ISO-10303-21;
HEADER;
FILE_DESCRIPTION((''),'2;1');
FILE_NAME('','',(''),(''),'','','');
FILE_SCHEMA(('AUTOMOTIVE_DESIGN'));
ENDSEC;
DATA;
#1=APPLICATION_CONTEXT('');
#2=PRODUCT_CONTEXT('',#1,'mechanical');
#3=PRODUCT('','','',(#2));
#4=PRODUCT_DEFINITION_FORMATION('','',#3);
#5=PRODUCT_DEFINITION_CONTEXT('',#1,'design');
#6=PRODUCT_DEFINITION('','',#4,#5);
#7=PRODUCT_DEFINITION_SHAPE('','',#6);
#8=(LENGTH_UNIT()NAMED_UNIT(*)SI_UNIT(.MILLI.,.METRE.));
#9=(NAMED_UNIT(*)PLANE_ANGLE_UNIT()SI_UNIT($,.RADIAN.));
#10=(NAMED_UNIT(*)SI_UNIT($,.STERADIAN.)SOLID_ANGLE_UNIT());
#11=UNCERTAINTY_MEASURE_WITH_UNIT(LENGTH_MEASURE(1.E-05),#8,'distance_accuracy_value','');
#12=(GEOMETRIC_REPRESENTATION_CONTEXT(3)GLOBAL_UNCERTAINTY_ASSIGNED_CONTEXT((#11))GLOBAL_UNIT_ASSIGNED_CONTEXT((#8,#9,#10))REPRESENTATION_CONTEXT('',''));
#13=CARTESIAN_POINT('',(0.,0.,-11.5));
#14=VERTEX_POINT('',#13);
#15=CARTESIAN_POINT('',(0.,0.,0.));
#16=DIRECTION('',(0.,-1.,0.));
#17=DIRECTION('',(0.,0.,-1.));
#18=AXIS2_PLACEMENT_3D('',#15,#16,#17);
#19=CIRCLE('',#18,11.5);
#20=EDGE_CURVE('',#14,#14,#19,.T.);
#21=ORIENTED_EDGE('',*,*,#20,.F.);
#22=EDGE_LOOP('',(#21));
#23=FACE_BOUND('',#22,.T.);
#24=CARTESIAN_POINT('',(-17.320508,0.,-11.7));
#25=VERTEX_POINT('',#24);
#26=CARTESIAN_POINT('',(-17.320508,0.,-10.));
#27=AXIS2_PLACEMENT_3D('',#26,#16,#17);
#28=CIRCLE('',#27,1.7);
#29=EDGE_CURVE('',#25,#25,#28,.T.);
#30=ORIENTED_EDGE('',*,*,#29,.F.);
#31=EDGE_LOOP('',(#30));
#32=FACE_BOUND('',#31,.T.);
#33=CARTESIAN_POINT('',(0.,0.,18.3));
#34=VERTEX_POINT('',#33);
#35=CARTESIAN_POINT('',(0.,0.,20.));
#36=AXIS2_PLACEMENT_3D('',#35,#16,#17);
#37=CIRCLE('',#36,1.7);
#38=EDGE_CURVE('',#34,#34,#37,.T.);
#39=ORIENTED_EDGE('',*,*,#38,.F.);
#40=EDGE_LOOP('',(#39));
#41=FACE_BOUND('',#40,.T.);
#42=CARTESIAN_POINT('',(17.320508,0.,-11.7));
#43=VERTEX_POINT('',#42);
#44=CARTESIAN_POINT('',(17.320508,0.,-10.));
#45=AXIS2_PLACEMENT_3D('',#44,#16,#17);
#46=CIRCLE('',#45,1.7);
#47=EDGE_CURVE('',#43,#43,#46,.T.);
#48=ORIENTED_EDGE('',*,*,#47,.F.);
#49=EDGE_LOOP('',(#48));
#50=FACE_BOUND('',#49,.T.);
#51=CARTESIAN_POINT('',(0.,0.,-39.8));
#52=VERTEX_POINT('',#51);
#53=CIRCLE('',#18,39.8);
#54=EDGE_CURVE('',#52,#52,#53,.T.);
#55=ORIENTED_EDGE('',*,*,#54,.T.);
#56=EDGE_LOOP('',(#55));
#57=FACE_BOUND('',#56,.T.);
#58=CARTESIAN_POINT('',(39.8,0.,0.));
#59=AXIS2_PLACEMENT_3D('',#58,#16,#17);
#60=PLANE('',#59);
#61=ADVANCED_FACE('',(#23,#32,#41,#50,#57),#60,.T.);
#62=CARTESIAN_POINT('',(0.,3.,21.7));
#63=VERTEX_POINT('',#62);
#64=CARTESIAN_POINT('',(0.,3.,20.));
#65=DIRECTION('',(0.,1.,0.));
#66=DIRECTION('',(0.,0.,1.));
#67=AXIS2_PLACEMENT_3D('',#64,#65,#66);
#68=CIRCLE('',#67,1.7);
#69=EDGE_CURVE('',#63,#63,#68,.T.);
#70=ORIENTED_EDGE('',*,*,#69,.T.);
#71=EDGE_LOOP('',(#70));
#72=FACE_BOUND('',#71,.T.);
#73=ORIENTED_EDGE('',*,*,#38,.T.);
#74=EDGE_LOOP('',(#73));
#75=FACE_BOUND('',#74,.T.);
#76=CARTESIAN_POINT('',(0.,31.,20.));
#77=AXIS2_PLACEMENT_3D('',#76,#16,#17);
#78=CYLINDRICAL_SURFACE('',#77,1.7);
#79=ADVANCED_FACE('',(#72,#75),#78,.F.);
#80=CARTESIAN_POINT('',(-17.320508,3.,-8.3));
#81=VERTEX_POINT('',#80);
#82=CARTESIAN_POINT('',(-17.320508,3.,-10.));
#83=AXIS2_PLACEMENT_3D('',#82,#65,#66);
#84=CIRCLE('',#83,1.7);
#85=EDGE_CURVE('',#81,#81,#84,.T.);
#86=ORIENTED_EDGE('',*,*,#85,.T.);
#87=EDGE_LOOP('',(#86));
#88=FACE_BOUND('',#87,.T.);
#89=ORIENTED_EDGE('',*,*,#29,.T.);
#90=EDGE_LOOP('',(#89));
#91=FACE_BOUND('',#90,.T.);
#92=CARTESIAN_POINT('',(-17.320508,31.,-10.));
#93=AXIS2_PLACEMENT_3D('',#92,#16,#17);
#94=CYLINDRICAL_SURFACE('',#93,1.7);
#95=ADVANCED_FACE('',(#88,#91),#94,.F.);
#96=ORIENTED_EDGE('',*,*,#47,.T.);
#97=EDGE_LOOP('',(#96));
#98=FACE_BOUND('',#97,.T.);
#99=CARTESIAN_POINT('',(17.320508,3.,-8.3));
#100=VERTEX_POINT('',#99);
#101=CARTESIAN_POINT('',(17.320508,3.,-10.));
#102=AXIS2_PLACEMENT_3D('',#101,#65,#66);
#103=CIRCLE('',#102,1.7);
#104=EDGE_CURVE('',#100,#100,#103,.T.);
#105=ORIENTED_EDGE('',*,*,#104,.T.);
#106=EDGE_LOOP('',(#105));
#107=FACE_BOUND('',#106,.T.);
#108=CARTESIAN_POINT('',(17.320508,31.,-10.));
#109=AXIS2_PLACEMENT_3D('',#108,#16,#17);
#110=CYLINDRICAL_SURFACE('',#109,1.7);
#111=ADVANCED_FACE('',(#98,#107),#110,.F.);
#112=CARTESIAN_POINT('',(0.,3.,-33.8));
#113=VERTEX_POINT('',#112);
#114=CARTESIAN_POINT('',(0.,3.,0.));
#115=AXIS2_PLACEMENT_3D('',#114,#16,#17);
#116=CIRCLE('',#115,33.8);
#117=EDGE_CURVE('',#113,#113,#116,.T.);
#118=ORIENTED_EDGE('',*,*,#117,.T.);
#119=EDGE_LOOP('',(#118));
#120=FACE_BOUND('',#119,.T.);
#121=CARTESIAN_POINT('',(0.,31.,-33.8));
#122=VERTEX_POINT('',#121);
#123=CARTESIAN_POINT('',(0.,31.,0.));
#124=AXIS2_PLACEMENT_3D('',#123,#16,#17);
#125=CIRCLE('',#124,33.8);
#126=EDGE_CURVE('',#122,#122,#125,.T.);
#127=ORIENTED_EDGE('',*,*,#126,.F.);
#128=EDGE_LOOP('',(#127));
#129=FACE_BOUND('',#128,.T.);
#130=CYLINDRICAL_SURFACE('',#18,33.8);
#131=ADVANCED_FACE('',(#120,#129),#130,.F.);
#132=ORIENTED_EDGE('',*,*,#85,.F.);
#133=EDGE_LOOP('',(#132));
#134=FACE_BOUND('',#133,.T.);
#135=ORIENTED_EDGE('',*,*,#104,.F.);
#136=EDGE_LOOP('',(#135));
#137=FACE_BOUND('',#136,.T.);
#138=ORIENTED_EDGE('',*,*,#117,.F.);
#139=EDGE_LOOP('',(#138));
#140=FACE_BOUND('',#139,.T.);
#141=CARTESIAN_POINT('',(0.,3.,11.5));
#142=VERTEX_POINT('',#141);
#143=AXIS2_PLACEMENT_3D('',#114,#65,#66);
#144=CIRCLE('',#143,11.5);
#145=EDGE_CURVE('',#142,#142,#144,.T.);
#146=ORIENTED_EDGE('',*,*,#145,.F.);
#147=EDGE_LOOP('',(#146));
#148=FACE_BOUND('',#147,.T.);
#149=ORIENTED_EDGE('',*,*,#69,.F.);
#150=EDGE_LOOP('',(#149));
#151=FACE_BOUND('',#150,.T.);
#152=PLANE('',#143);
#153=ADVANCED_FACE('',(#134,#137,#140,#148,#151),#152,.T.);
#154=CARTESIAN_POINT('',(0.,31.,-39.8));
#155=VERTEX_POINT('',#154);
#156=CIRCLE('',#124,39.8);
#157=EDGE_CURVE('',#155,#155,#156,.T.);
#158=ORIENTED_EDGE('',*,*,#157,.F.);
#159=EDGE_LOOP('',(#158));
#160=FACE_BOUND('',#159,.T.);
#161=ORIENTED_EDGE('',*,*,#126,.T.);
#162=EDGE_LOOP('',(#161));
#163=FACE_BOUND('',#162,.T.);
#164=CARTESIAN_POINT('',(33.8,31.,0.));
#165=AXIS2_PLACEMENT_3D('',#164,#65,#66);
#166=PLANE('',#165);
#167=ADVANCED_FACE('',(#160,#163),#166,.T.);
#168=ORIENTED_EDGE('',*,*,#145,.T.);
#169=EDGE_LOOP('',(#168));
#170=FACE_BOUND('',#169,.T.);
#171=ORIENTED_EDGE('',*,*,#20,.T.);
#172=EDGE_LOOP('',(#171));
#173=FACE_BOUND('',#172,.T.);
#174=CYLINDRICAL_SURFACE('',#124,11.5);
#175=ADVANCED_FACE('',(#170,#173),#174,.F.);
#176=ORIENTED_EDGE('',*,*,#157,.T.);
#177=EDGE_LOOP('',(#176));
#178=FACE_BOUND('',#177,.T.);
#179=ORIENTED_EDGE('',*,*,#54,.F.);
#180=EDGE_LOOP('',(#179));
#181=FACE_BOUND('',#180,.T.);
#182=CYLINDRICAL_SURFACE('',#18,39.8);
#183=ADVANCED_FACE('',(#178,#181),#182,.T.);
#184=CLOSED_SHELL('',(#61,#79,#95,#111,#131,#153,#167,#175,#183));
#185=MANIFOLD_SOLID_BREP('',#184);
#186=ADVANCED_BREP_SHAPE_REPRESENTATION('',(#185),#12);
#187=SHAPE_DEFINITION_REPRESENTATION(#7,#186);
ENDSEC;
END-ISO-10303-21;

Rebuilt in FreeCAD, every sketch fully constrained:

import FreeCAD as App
import Part
import Sketcher

V = App.Vector


def add_polygon(sketch, points):
    """Adds a closed chain of lines whose ends are joined by coincident constraints."""
    first, n = sketch.GeometryCount, len(points)
    for a, b in zip(points, points[1:] + points[:1]):
        sketch.addGeometry(Part.LineSegment(App.Vector(*a, 0), App.Vector(*b, 0)), False)
    for i in range(n):
        sketch.addConstraint(Sketcher.Constraint("Coincident", first + i, 2, first + (i + 1) % n, 1))

doc = App.newDocument("Part")
body = doc.addObject("PartDesign::Body", "Body")

# Sketch on XY plane
sketch1 = doc.addObject("Sketcher::SketchObject", "Sketch")
body.addObject(sketch1)
sketch1.AttachmentSupport = (doc.XY_Plane, [""])
sketch1.MapMode = "FlatFace"
add_polygon(sketch1, [(39.8, 0), (39.8, 31), (33.8, 31), (33.8, 3), (0, 3), (0, 0)])  # lines 0-5
sketch1.addConstraint([
    Sketcher.Constraint("Vertical", 0),
    Sketcher.Constraint("Horizontal", 1),
    Sketcher.Constraint("Vertical", 2),
    Sketcher.Constraint("Horizontal", 3),
    Sketcher.Constraint("Vertical", 4),
    Sketcher.Constraint("Horizontal", 5),
    Sketcher.Constraint("Coincident", 4, 2, -1, 1),
    Sketcher.Constraint("DistanceX", 1, 2, 1, 1, 6.0),
    Sketcher.Constraint("DistanceY", 0, 1, 0, 2, 31.0),
    Sketcher.Constraint("DistanceY", 2, 2, 2, 1, 28.0),
    Sketcher.Constraint("DistanceX", 3, 2, 3, 1, 33.8),
])
revolution = doc.addObject("PartDesign::Revolution", "Revolution")
body.addObject(revolution)
revolution.Profile = sketch1
revolution.ReferenceAxis = (sketch1, ["V_Axis"])
revolution.Angle = 360

# Sketch on XZ plane
sketch2 = doc.addObject("Sketcher::SketchObject", "Sketch001")
body.addObject(sketch2)
sketch2.AttachmentSupport = (doc.XZ_Plane, [""])
sketch2.MapMode = "FlatFace"
sketch2.addGeometry([
    Part.Circle(V(0, 0, 0), V(0, 0, 1), 11.5),
    Part.Circle(V(0, 20, 0), V(0, 0, 1), 1.7),
    Part.Circle(V(17.3, -10, 0), V(0, 0, 1), 1.7),
    Part.Circle(V(-17.3, -10, 0), V(0, 0, 1), 1.7),
], False)
sketch2.addConstraint([
    Sketcher.Constraint("Coincident", 0, 3, -1, 1),
    Sketcher.Constraint("Equal", 1, 2),
    Sketcher.Constraint("Equal", 2, 3),
    Sketcher.Constraint("Symmetric", 2, 3, 3, 3, -2),
    Sketcher.Constraint("PointOnObject", 1, 3, -2),
    Sketcher.Constraint("Diameter", 0, 23.0),
    Sketcher.Constraint("Diameter", 1, 3.4),
    Sketcher.Constraint("DistanceY", -1, 1, 1, 3, 20.0),
    Sketcher.Constraint("DistanceY", 2, 3, -1, 1, 10.0),
    Sketcher.Constraint("DistanceX", -1, 1, 2, 3, 17.320508),
])
pocket1 = doc.addObject("PartDesign::Pocket", "Pocket")
body.addObject(pocket1)
pocket1.Profile = sketch2
pocket1.Type = "ThroughAll"

doc.recompute()
